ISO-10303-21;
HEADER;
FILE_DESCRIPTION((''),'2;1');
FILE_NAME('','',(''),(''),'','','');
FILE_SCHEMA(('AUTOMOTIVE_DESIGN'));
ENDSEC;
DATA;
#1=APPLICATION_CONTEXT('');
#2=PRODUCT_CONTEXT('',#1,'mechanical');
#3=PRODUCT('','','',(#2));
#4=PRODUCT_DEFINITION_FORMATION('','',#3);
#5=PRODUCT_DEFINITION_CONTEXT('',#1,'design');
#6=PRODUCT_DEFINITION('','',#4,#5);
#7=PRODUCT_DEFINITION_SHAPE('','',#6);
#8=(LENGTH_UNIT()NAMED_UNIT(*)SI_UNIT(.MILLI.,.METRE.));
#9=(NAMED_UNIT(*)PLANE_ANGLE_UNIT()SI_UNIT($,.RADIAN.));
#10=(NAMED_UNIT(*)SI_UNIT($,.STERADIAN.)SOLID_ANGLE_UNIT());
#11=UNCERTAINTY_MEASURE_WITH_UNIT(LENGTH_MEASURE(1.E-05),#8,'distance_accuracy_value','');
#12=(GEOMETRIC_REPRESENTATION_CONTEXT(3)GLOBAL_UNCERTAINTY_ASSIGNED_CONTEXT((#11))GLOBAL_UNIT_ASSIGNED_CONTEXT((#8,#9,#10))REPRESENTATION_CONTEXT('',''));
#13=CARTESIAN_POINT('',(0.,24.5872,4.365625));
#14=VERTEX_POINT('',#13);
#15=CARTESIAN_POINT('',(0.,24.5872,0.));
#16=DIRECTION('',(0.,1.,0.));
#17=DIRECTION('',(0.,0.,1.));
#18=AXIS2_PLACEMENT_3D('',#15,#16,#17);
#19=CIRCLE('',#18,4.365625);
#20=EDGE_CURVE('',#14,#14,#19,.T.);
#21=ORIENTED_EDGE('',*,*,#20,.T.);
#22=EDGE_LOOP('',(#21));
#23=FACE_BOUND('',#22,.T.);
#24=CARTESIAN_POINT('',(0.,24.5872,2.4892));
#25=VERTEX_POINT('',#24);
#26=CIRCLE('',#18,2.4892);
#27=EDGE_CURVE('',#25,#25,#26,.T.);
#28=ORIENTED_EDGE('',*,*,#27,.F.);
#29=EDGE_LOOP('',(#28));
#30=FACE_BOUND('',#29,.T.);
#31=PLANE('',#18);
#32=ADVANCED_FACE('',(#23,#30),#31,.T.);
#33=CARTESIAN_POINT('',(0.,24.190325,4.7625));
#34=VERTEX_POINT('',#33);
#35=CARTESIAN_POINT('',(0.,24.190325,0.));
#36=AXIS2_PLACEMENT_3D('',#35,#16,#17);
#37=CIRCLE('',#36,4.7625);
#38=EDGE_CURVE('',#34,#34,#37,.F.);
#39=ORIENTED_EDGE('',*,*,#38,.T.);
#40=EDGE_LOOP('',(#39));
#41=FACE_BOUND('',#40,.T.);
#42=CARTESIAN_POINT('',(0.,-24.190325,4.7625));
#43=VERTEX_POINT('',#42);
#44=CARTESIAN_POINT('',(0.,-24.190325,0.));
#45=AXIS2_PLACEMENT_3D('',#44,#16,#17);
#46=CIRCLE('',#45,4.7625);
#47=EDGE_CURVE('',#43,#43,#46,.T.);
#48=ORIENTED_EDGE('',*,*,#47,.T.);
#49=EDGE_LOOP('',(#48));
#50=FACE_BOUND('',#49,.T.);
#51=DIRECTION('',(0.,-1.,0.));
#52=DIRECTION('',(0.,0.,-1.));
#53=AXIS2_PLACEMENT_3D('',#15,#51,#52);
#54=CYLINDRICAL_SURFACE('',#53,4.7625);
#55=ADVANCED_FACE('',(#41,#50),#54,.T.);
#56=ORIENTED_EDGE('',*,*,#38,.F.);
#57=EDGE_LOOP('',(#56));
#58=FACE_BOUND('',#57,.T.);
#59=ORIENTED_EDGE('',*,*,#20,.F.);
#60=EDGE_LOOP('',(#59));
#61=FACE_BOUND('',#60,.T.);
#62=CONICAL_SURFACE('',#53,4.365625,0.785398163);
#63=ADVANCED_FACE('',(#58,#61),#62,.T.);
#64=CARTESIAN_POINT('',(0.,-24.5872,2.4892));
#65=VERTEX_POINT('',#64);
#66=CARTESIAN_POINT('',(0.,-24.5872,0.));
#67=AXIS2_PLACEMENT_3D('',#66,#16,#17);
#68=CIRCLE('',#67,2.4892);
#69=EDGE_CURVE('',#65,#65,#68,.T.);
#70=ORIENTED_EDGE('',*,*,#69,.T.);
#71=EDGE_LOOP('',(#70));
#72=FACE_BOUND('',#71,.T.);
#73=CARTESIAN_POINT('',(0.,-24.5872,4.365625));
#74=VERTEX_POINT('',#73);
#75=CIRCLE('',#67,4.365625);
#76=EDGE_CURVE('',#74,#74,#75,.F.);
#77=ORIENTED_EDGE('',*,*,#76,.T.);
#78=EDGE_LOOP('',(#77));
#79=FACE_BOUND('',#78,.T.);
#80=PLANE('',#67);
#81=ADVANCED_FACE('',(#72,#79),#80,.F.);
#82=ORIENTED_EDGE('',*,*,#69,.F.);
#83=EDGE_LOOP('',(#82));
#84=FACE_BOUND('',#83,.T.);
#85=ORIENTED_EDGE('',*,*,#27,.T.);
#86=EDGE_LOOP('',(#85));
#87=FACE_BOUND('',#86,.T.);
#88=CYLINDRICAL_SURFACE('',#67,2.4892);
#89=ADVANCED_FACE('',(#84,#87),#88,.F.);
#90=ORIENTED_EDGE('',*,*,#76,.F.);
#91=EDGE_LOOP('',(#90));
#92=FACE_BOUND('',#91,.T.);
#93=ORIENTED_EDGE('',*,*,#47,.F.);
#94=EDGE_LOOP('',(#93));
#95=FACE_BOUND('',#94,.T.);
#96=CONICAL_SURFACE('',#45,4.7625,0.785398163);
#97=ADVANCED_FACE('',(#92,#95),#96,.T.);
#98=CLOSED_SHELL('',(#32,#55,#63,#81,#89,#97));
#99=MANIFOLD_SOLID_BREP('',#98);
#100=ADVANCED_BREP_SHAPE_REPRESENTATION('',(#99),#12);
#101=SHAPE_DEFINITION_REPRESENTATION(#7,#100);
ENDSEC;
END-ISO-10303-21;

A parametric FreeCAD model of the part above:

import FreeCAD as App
import Part
import Sketcher

V = App.Vector
Q = App.Units.Quantity


def edges_at(feature, points):
    """Names of the edges that pass closest to the given points."""
    edges = feature.Shape.Edges
    near = lambda p: min(range(len(edges)), key=lambda i: edges[i].distToShape(Part.Vertex(*p))[0])
    return sorted({f"Edge{near(p) + 1}" for p in points})

doc = App.newDocument("Part")
body = doc.addObject("PartDesign::Body", "Body")

# Sketch on XZ plane
sketch1 = doc.addObject("Sketcher::SketchObject", "Sketch")
body.addObject(sketch1)
sketch1.AttachmentSupport = (doc.XZ_Plane, [""])
sketch1.MapMode = "FlatFace"
sketch1.addGeometry(Part.Circle(V(0, 0, 0), V(0, 0, 1), 4.8), False)
sketch1.addConstraint(Sketcher.Constraint("Coincident", 0, 3, -1, 1))
sketch1.addConstraint(Sketcher.Constraint("Diameter", 0, Q("0.375 in")))
pad1 = doc.addObject("PartDesign::Pad", "Pad")
body.addObject(pad1)
pad1.Profile = sketch1
pad1.Length = Q("1.936 in")
pad1.Midplane = True
doc.recompute()

chamfer = doc.addObject("PartDesign::Chamfer", "Chamfer")
body.addObject(chamfer)
chamfer.Base = (pad1, edges_at(pad1, [(-4.763, -24.587, 0), (-4.763, 24.587, 0)]))
chamfer.Size = Q("0.015625 in")

# Sketch on XZ plane
sketch2 = doc.addObject("Sketcher::SketchObject", "Sketch001")
body.addObject(sketch2)
sketch2.AttachmentSupport = (doc.XZ_Plane, [""])
sketch2.MapMode = "FlatFace"
sketch2.addGeometry(Part.Circle(V(0, 0, 0), V(0, 0, 1), 2.5), False)
sketch2.addConstraint(Sketcher.Constraint("Coincident", 0, 3, -1, 1))
sketch2.addConstraint(Sketcher.Constraint("Diameter", 0, Q("0.196 in")))
pocket1 = doc.addObject("PartDesign::Pocket", "Pocket")
body.addObject(pocket1)
pocket1.Profile = sketch2
pocket1.Type = "ThroughAll"
pocket1.Midplane = True

doc.recompute()
